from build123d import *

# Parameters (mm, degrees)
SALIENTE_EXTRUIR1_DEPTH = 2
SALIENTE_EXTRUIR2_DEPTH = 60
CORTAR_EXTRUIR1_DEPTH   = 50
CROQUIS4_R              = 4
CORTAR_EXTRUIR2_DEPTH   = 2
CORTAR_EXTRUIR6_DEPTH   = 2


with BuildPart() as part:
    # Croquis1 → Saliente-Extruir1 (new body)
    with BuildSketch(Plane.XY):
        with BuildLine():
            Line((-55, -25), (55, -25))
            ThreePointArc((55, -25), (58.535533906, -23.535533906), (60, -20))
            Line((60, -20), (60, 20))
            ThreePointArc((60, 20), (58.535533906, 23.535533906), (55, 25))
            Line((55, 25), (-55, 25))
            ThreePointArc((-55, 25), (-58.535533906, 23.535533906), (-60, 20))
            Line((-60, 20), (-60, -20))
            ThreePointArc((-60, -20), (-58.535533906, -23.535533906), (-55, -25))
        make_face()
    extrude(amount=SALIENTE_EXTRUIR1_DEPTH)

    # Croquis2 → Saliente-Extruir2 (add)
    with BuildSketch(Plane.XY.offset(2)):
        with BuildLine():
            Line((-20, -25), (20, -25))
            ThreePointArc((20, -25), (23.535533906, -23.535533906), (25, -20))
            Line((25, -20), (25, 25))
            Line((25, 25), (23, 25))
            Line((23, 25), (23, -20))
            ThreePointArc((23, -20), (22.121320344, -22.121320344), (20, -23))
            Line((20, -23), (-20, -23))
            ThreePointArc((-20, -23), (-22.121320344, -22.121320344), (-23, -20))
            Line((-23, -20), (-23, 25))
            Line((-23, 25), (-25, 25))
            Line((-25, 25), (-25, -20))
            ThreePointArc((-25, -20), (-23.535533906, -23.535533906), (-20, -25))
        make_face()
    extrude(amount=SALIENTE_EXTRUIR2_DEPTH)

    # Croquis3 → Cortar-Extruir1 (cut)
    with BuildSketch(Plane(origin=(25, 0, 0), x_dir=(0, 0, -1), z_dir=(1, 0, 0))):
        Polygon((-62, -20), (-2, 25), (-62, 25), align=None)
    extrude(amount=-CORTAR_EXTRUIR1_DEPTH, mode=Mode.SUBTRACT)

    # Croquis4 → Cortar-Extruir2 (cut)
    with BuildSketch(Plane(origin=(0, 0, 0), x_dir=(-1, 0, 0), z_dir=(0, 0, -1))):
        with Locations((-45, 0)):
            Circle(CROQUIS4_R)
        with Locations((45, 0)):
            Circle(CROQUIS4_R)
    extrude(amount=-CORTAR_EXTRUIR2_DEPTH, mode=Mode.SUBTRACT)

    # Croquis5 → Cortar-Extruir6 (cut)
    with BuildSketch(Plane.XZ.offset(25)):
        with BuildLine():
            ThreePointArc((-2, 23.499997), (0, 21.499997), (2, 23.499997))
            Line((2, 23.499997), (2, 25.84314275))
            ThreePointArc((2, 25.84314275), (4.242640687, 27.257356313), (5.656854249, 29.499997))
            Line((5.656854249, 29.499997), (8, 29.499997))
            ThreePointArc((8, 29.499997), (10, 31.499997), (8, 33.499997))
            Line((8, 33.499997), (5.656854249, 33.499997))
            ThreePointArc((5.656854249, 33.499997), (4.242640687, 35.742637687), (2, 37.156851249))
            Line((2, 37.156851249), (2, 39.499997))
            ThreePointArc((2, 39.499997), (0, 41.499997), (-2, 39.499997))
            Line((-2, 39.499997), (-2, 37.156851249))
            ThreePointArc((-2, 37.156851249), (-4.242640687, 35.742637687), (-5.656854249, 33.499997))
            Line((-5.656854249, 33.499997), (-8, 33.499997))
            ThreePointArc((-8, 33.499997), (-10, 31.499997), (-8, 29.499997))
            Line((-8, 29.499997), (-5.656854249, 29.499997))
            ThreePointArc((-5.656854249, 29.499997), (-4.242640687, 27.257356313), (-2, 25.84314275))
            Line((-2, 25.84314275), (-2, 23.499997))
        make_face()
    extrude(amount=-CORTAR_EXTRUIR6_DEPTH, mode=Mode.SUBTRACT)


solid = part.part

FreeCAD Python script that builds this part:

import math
import FreeCAD as App
import Part
import Sketcher

V = App.Vector

doc = App.newDocument("Part")
params = doc.addObject("Spreadsheet::Sheet", "Params")
for row, (alias, value) in enumerate([
    ("sketch1_radius", "5 mm"),
    ("sketch1_width", "110 mm"),
    ("sketch1_height", "40 mm"),
    ("pad1_length", "2 mm"),
    ("sketch2_radius", "5 mm"),
    ("sketch2_radius2", "3 mm"),
    ("sketch2_width", "40 mm"),
    ("sketch2_height", "45 mm"),
    ("pad2_length", "60 mm"),
    ("sketch3_width", "45 mm"),
    ("sketch3_height", "60 mm"),
    ("pocket1_length", "50 mm"),
    ("sketch4_diameter", "8 mm"),
    ("pocket2_length", "2 mm"),
    ("sketch5_radius", "2 mm"),
    ("sketch5_radius2", "6 mm"),
    ("pocket3_length", "2 mm"),
], start=1):
    params.set(f"A{row}", alias)
    params.set(f"B{row}", "=" + value)
    params.setAlias(f"B{row}", alias)

body = doc.addObject("PartDesign::Body", "Body")

# Sketch on XY plane
sketch1 = body.newObject("Sketcher::SketchObject", "Sketch")
sketch1.AttachmentSupport = (doc.getObject("XY_Plane"), [""])
sketch1.MapMode = "FlatFace"
sketch1.addGeometry([
    Part.LineSegment(V(-55, -25, 0), V(55, -25, 0)),  # 0
    Part.ArcOfCircle(Part.Circle(V(55, -20, 0), V(0, 0, 1), 5), math.radians(-90), math.radians(0)),  # 1
    Part.LineSegment(V(60, -20, 0), V(60, 20, 0)),  # 2
    Part.ArcOfCircle(Part.Circle(V(55, 20, 0), V(0, 0, 1), 5), math.radians(0), math.radians(90)),  # 3
    Part.LineSegment(V(55, 25, 0), V(-55, 25, 0)),  # 4
    Part.ArcOfCircle(Part.Circle(V(-55, 20, 0), V(0, 0, 1), 5), math.radians(90), math.radians(180)),  # 5
    Part.LineSegment(V(-60, 20, 0), V(-60, -20, 0)),  # 6
    Part.ArcOfCircle(Part.Circle(V(-55, -20, 0), V(0, 0, 1), 5), math.radians(180), math.radians(270)),  # 7
], False)
sketch1.addConstraint([
    Sketcher.Constraint("Tangent", 0, 2, 1, 1),
    Sketcher.Constraint("Tangent", 1, 2, 2, 1),
    Sketcher.Constraint("Tangent", 2, 2, 3, 1),
    Sketcher.Constraint("Tangent", 3, 2, 4, 1),
    Sketcher.Constraint("Tangent", 4, 2, 5, 1),
    Sketcher.Constraint("Tangent", 5, 2, 6, 1),
    Sketcher.Constraint("Tangent", 6, 2, 7, 1),
    Sketcher.Constraint("Tangent", 7, 2, 0, 1),
    Sketcher.Constraint("Horizontal", 0),
    Sketcher.Constraint("Vertical", 2),
    Sketcher.Constraint("Horizontal", 4),
    Sketcher.Constraint("Vertical", 6),
    Sketcher.Constraint("Equal", 1, 3),
    Sketcher.Constraint("Equal", 3, 5),
    Sketcher.Constraint("Equal", 5, 7),
    Sketcher.Constraint("Symmetric", 1, 3, 5, 3, -1, 1),
    Sketcher.Constraint("Radius", 1, 5.0),
    Sketcher.Constraint("DistanceX", 0, 1, 0, 2, 110.0),
    Sketcher.Constraint("DistanceY", 2, 1, 2, 2, 40.0),
])
sketch1.setExpression("Constraints[16]", "Params.sketch1_radius")
sketch1.setExpression("Constraints[17]", "Params.sketch1_width")
sketch1.setExpression("Constraints[18]", "Params.sketch1_height")
pad1 = body.newObject("PartDesign::Pad", "Pad")
pad1.Profile = sketch1
pad1.setExpression("Length", "Params.pad1_length")

# Sketch on XY plane
sketch2 = body.newObject("Sketcher::SketchObject", "Sketch001")
sketch2.AttachmentSupport = (doc.getObject("XY_Plane"), [""])
sketch2.MapMode = "FlatFace"
sketch2.AttachmentOffset = App.Placement(V(0, 0, 2), App.Rotation())
sketch2.addGeometry([
    Part.LineSegment(V(-20, -25, 0), V(20, -25, 0)),  # 0
    Part.ArcOfCircle(Part.Circle(V(20, -20, 0), V(0, 0, 1), 5), math.radians(-90), math.radians(0)),  # 1
    Part.LineSegment(V(25, -20, 0), V(25, 25, 0)),  # 2
    Part.LineSegment(V(25, 25, 0), V(23, 25, 0)),  # 3
    Part.LineSegment(V(23, 25, 0), V(23, -20, 0)),  # 4
    Part.ArcOfCircle(Part.Circle(V(20, -20, 0), V(0, 0, 1), 3), math.radians(-90), math.radians(0)),  # 5
    Part.LineSegment(V(20, -23, 0), V(-20, -23, 0)),  # 6
    Part.ArcOfCircle(Part.Circle(V(-20, -20, 0), V(0, 0, 1), 3), math.radians(180), math.radians(270)),  # 7
    Part.LineSegment(V(-23, -20, 0), V(-23, 25, 0)),  # 8
    Part.LineSegment(V(-23, 25, 0), V(-25, 25, 0)),  # 9
    Part.LineSegment(V(-25, 25, 0), V(-25, -20, 0)),  # 10
    Part.ArcOfCircle(Part.Circle(V(-20, -20, 0), V(0, 0, 1), 5), math.radians(180), math.radians(270)),  # 11
], False)
sketch2.addConstraint([
    Sketcher.Constraint("Tangent", 0, 2, 1, 1),
    Sketcher.Constraint("Tangent", 1, 2, 2, 1),
    Sketcher.Constraint("Coincident", 2, 2, 3, 1),
    Sketcher.Constraint("Coincident", 3, 2, 4, 1),
    Sketcher.Constraint("Tangent", 4, 2, 5, 2),
    Sketcher.Constraint("Tangent", 5, 1, 6, 1),
    Sketcher.Constraint("Tangent", 6, 2, 7, 2),
    Sketcher.Constraint("Tangent", 7, 1, 8, 1),
    Sketcher.Constraint("Coincident", 8, 2, 9, 1),
    Sketcher.Constraint("Coincident", 9, 2, 10, 1),
    Sketcher.Constraint("Tangent", 10, 2, 11, 1),
    Sketcher.Constraint("Tangent", 11, 2, 0, 1),
    Sketcher.Constraint("Horizontal", 0),
    Sketcher.Constraint("Vertical", 2),
    Sketcher.Constraint("Horizontal", 3),
    Sketcher.Constraint("Vertical", 4),
    Sketcher.Constraint("Horizontal", 6),
    Sketcher.Constraint("Vertical", 8),
    Sketcher.Constraint("Horizontal", 9),
    Sketcher.Constraint("Vertical", 10),
    Sketcher.Constraint("Coincident", 5, 3, 1, 3),
    Sketcher.Constraint("Coincident", 11, 3, 7, 3),
    Sketcher.Constraint("Equal", 5, 7),
    Sketcher.Constraint("Symmetric", 3, 2, 8, 2, -2),
    Sketcher.Constraint("Radius", 1, 5.0),
    Sketcher.Constraint("Radius", 5, 3.0),
    Sketcher.Constraint("DistanceX", 0, 1, 0, 2, 40.0),
    Sketcher.Constraint("DistanceY", 2, 1, 2, 2, 45.0),
    Sketcher.Constraint("DistanceY", 1, 3, -1, 1, 20.0),
])
sketch2.setExpression("Constraints[24]", "Params.sketch2_radius")
sketch2.setExpression("Constraints[25]", "Params.sketch2_radius2")
sketch2.setExpression("Constraints[26]", "Params.sketch2_width")
sketch2.setExpression("Constraints[27]", "Params.sketch2_height")
pad2 = body.newObject("PartDesign::Pad", "Pad001")
pad2.Profile = sketch2
pad2.setExpression("Length", "Params.pad2_length")

# Sketch on YZ plane
sketch3 = body.newObject("Sketcher::SketchObject", "Sketch002")
sketch3.AttachmentSupport = (doc.getObject("YZ_Plane"), [""])
sketch3.MapMode = "FlatFace"
sketch3.AttachmentOffset = App.Placement(V(0, 0, 25), App.Rotation())
sketch3.addGeometry([
    Part.LineSegment(V(-20, 62, 0), V(25, 2, 0)),
    Part.LineSegment(V(25, 2, 0), V(25, 62, 0)),
    Part.LineSegment(V(25, 62, 0), V(-20, 62, 0)),
], False)
sketch3.addConstraint([
    Sketcher.Constraint("Coincident", 0, 2, 1, 1),
    Sketcher.Constraint("Coincident", 1, 2, 2, 1),
    Sketcher.Constraint("Coincident", 2, 2, 0, 1),
    Sketcher.Constraint("Vertical", 1),
    Sketcher.Constraint("Horizontal", 2),
    Sketcher.Constraint("DistanceX", 2, 2, 2, 1, 45.0),
    Sketcher.Constraint("DistanceY", 1, 1, 1, 2, 60.0),
    Sketcher.Constraint("DistanceX", -1, 1, 0, 2, 25.0),
    Sketcher.Constraint("DistanceY", -1, 1, 0, 2, 2.0),
])
sketch3.setExpression("Constraints[5]", "Params.sketch3_width")
sketch3.setExpression("Constraints[6]", "Params.sketch3_height")
pocket1 = body.newObject("PartDesign::Pocket", "Pocket")
pocket1.Profile = sketch3
pocket1.setExpression("Length", "Params.pocket1_length")

# Sketch on XY plane
sketch4 = body.newObject("Sketcher::SketchObject", "Sketch003")
sketch4.AttachmentSupport = (doc.getObject("XY_Plane"), [""])
sketch4.MapMode = "FlatFace"
sketch4.addGeometry([
    Part.Circle(V(45, 0, 0), V(0, 0, 1), 4),
    Part.Circle(V(-45, 0, 0), V(0, 0, 1), 4),
], False)
sketch4.addConstraint([
    Sketcher.Constraint("Equal", 0, 1),
    Sketcher.Constraint("Symmetric", 0, 3, 1, 3, -1, 1),
    Sketcher.Constraint("PointOnObject", 0, 3, -1),
    Sketcher.Constraint("Diameter", 0, 8.0),
    Sketcher.Constraint("DistanceX", -1, 1, 0, 3, 45.0),
])
sketch4.setExpression("Constraints[3]", "Params.sketch4_diameter")
pocket2 = body.newObject("PartDesign::Pocket", "Pocket001")
pocket2.Profile = sketch4
pocket2.setExpression("Length", "Params.pocket2_length")
pocket2.Reversed = True

# Sketch on XZ plane
sketch5 = body.newObject("Sketcher::SketchObject", "Sketch004")
sketch5.AttachmentSupport = (doc.getObject("XZ_Plane"), [""])
sketch5.MapMode = "FlatFace"
sketch5.AttachmentOffset = App.Placement(V(0, 0, 25), App.Rotation())
sketch5.addGeometry([
    Part.ArcOfCircle(Part.Circle(V(0, 23.5, 0), V(0, 0, 1), 2), math.radians(180), math.radians(360)),  # 0
    Part.LineSegment(V(2, 23.5, 0), V(2, 25.8, 0)),  # 1
    Part.ArcOfCircle(Part.Circle(V(0, 31.5, 0), V(0, 0, 1), 6), math.radians(-71), math.radians(-19)),  # 2
    Part.LineSegment(V(5.7, 29.5, 0), V(8, 29.5, 0)),  # 3
    Part.ArcOfCircle(Part.Circle(V(8, 31.5, 0), V(0, 0, 1), 2), math.radians(-90), math.radians(90)),  # 4
    Part.LineSegment(V(8, 33.5, 0), V(5.7, 33.5, 0)),  # 5
    Part.ArcOfCircle(Part.Circle(V(0, 31.5, 0), V(0, 0, 1), 6), math.radians(19), math.radians(71)),  # 6
    Part.LineSegment(V(2, 37.2, 0), V(2, 39.5, 0)),  # 7
    Part.ArcOfCircle(Part.Circle(V(0, 39.5, 0), V(0, 0, 1), 2), math.radians(0), math.radians(180)),  # 8
    Part.LineSegment(V(-2, 39.5, 0), V(-2, 37.2, 0)),  # 9
    Part.ArcOfCircle(Part.Circle(V(0, 31.5, 0), V(0, 0, 1), 6), math.radians(109), math.radians(161)),  # 10
    Part.LineSegment(V(-5.7, 33.5, 0), V(-8, 33.5, 0)),  # 11
    Part.ArcOfCircle(Part.Circle(V(-8, 31.5, 0), V(0, 0, 1), 2), math.radians(90), math.radians(270)),  # 12
    Part.LineSegment(V(-8, 29.5, 0), V(-5.7, 29.5, 0)),  # 13
    Part.ArcOfCircle(Part.Circle(V(0, 31.5, 0), V(0, 0, 1), 6), math.radians(-161), math.radians(-109)),  # 14
    Part.LineSegment(V(-2, 25.8, 0), V(-2, 23.5, 0)),  # 15
], False)
sketch5.addConstraint([
    Sketcher.Constraint("Tangent", 0, 2, 1, 1),
    Sketcher.Constraint("Coincident", 1, 2, 2, 1),
    Sketcher.Constraint("Coincident", 2, 2, 3, 1),
    Sketcher.Constraint("Tangent", 3, 2, 4, 1),
    Sketcher.Constraint("Tangent", 4, 2, 5, 1),
    Sketcher.Constraint("Coincident", 5, 2, 6, 1),
    Sketcher.Constraint("Coincident", 6, 2, 7, 1),
    Sketcher.Constraint("Tangent", 7, 2, 8, 1),
    Sketcher.Constraint("Tangent", 8, 2, 9, 1),
    Sketcher.Constraint("Coincident", 9, 2, 10, 1),
    Sketcher.Constraint("Coincident", 10, 2, 11, 1),
    Sketcher.Constraint("Tangent", 11, 2, 12, 1),
    Sketcher.Constraint("Tangent", 12, 2, 13, 1),
    Sketcher.Constraint("Coincident", 13, 2, 14, 1),
    Sketcher.Constraint("Coincident", 14, 2, 15, 1),
    Sketcher.Constraint("Tangent", 15, 2, 0, 1),
    Sketcher.Constraint("Vertical", 1),
    Sketcher.Constraint("Horizontal", 3),
    Sketcher.Constraint("Horizontal", 5),
    Sketcher.Constraint("Vertical", 7),
    Sketcher.Constraint("Vertical", 9),
    Sketcher.Constraint("Horizontal", 11),
    Sketcher.Constraint("Horizontal", 13),
    Sketcher.Constraint("Vertical", 15),
    Sketcher.Constraint("Coincident", 6, 3, 2, 3),
    Sketcher.Constraint("Coincident", 10, 3, 2, 3),
    Sketcher.Constraint("Coincident", 14, 3, 2, 3),
    Sketcher.Constraint("Equal", 0, 4),
    Sketcher.Constraint("Equal", 2, 6),
    Sketcher.Constraint("Equal", 4, 8),
    Sketcher.Constraint("Equal", 6, 10),
    Sketcher.Constraint("Equal", 8, 12),
    Sketcher.Constraint("Equal", 10, 14),
    Sketcher.Constraint("Symmetric", 4, 3, 12, 3, -2),
    Sketcher.Constraint("Symmetric", 6, 2, 9, 2, -2),
    Sketcher.Constraint("PointOnObject", 0, 3, -2),
    Sketcher.Constraint("Horizontal", 2, 3, 4, 3),
    Sketcher.Constraint("Equal", 13, 1),
    Sketcher.Constraint("Equal", 1, 7),
    Sketcher.Constraint("Radius", 0, 2.0),
    Sketcher.Constraint("Radius", 2, 6.0),
    Sketcher.Constraint("DistanceX", -1, 1, 4, 3, 8.0),
    Sketcher.Constraint("DistanceY", -1, 1, 6, 2, 37.156851),
])
sketch5.setExpression("Constraints[39]", "Params.sketch5_radius")
sketch5.setExpression("Constraints[40]", "Params.sketch5_radius2")
pocket3 = body.newObject("PartDesign::Pocket", "Pocket002")
pocket3.Profile = sketch5
pocket3.setExpression("Length", "Params.pocket3_length")

doc.recompute()
